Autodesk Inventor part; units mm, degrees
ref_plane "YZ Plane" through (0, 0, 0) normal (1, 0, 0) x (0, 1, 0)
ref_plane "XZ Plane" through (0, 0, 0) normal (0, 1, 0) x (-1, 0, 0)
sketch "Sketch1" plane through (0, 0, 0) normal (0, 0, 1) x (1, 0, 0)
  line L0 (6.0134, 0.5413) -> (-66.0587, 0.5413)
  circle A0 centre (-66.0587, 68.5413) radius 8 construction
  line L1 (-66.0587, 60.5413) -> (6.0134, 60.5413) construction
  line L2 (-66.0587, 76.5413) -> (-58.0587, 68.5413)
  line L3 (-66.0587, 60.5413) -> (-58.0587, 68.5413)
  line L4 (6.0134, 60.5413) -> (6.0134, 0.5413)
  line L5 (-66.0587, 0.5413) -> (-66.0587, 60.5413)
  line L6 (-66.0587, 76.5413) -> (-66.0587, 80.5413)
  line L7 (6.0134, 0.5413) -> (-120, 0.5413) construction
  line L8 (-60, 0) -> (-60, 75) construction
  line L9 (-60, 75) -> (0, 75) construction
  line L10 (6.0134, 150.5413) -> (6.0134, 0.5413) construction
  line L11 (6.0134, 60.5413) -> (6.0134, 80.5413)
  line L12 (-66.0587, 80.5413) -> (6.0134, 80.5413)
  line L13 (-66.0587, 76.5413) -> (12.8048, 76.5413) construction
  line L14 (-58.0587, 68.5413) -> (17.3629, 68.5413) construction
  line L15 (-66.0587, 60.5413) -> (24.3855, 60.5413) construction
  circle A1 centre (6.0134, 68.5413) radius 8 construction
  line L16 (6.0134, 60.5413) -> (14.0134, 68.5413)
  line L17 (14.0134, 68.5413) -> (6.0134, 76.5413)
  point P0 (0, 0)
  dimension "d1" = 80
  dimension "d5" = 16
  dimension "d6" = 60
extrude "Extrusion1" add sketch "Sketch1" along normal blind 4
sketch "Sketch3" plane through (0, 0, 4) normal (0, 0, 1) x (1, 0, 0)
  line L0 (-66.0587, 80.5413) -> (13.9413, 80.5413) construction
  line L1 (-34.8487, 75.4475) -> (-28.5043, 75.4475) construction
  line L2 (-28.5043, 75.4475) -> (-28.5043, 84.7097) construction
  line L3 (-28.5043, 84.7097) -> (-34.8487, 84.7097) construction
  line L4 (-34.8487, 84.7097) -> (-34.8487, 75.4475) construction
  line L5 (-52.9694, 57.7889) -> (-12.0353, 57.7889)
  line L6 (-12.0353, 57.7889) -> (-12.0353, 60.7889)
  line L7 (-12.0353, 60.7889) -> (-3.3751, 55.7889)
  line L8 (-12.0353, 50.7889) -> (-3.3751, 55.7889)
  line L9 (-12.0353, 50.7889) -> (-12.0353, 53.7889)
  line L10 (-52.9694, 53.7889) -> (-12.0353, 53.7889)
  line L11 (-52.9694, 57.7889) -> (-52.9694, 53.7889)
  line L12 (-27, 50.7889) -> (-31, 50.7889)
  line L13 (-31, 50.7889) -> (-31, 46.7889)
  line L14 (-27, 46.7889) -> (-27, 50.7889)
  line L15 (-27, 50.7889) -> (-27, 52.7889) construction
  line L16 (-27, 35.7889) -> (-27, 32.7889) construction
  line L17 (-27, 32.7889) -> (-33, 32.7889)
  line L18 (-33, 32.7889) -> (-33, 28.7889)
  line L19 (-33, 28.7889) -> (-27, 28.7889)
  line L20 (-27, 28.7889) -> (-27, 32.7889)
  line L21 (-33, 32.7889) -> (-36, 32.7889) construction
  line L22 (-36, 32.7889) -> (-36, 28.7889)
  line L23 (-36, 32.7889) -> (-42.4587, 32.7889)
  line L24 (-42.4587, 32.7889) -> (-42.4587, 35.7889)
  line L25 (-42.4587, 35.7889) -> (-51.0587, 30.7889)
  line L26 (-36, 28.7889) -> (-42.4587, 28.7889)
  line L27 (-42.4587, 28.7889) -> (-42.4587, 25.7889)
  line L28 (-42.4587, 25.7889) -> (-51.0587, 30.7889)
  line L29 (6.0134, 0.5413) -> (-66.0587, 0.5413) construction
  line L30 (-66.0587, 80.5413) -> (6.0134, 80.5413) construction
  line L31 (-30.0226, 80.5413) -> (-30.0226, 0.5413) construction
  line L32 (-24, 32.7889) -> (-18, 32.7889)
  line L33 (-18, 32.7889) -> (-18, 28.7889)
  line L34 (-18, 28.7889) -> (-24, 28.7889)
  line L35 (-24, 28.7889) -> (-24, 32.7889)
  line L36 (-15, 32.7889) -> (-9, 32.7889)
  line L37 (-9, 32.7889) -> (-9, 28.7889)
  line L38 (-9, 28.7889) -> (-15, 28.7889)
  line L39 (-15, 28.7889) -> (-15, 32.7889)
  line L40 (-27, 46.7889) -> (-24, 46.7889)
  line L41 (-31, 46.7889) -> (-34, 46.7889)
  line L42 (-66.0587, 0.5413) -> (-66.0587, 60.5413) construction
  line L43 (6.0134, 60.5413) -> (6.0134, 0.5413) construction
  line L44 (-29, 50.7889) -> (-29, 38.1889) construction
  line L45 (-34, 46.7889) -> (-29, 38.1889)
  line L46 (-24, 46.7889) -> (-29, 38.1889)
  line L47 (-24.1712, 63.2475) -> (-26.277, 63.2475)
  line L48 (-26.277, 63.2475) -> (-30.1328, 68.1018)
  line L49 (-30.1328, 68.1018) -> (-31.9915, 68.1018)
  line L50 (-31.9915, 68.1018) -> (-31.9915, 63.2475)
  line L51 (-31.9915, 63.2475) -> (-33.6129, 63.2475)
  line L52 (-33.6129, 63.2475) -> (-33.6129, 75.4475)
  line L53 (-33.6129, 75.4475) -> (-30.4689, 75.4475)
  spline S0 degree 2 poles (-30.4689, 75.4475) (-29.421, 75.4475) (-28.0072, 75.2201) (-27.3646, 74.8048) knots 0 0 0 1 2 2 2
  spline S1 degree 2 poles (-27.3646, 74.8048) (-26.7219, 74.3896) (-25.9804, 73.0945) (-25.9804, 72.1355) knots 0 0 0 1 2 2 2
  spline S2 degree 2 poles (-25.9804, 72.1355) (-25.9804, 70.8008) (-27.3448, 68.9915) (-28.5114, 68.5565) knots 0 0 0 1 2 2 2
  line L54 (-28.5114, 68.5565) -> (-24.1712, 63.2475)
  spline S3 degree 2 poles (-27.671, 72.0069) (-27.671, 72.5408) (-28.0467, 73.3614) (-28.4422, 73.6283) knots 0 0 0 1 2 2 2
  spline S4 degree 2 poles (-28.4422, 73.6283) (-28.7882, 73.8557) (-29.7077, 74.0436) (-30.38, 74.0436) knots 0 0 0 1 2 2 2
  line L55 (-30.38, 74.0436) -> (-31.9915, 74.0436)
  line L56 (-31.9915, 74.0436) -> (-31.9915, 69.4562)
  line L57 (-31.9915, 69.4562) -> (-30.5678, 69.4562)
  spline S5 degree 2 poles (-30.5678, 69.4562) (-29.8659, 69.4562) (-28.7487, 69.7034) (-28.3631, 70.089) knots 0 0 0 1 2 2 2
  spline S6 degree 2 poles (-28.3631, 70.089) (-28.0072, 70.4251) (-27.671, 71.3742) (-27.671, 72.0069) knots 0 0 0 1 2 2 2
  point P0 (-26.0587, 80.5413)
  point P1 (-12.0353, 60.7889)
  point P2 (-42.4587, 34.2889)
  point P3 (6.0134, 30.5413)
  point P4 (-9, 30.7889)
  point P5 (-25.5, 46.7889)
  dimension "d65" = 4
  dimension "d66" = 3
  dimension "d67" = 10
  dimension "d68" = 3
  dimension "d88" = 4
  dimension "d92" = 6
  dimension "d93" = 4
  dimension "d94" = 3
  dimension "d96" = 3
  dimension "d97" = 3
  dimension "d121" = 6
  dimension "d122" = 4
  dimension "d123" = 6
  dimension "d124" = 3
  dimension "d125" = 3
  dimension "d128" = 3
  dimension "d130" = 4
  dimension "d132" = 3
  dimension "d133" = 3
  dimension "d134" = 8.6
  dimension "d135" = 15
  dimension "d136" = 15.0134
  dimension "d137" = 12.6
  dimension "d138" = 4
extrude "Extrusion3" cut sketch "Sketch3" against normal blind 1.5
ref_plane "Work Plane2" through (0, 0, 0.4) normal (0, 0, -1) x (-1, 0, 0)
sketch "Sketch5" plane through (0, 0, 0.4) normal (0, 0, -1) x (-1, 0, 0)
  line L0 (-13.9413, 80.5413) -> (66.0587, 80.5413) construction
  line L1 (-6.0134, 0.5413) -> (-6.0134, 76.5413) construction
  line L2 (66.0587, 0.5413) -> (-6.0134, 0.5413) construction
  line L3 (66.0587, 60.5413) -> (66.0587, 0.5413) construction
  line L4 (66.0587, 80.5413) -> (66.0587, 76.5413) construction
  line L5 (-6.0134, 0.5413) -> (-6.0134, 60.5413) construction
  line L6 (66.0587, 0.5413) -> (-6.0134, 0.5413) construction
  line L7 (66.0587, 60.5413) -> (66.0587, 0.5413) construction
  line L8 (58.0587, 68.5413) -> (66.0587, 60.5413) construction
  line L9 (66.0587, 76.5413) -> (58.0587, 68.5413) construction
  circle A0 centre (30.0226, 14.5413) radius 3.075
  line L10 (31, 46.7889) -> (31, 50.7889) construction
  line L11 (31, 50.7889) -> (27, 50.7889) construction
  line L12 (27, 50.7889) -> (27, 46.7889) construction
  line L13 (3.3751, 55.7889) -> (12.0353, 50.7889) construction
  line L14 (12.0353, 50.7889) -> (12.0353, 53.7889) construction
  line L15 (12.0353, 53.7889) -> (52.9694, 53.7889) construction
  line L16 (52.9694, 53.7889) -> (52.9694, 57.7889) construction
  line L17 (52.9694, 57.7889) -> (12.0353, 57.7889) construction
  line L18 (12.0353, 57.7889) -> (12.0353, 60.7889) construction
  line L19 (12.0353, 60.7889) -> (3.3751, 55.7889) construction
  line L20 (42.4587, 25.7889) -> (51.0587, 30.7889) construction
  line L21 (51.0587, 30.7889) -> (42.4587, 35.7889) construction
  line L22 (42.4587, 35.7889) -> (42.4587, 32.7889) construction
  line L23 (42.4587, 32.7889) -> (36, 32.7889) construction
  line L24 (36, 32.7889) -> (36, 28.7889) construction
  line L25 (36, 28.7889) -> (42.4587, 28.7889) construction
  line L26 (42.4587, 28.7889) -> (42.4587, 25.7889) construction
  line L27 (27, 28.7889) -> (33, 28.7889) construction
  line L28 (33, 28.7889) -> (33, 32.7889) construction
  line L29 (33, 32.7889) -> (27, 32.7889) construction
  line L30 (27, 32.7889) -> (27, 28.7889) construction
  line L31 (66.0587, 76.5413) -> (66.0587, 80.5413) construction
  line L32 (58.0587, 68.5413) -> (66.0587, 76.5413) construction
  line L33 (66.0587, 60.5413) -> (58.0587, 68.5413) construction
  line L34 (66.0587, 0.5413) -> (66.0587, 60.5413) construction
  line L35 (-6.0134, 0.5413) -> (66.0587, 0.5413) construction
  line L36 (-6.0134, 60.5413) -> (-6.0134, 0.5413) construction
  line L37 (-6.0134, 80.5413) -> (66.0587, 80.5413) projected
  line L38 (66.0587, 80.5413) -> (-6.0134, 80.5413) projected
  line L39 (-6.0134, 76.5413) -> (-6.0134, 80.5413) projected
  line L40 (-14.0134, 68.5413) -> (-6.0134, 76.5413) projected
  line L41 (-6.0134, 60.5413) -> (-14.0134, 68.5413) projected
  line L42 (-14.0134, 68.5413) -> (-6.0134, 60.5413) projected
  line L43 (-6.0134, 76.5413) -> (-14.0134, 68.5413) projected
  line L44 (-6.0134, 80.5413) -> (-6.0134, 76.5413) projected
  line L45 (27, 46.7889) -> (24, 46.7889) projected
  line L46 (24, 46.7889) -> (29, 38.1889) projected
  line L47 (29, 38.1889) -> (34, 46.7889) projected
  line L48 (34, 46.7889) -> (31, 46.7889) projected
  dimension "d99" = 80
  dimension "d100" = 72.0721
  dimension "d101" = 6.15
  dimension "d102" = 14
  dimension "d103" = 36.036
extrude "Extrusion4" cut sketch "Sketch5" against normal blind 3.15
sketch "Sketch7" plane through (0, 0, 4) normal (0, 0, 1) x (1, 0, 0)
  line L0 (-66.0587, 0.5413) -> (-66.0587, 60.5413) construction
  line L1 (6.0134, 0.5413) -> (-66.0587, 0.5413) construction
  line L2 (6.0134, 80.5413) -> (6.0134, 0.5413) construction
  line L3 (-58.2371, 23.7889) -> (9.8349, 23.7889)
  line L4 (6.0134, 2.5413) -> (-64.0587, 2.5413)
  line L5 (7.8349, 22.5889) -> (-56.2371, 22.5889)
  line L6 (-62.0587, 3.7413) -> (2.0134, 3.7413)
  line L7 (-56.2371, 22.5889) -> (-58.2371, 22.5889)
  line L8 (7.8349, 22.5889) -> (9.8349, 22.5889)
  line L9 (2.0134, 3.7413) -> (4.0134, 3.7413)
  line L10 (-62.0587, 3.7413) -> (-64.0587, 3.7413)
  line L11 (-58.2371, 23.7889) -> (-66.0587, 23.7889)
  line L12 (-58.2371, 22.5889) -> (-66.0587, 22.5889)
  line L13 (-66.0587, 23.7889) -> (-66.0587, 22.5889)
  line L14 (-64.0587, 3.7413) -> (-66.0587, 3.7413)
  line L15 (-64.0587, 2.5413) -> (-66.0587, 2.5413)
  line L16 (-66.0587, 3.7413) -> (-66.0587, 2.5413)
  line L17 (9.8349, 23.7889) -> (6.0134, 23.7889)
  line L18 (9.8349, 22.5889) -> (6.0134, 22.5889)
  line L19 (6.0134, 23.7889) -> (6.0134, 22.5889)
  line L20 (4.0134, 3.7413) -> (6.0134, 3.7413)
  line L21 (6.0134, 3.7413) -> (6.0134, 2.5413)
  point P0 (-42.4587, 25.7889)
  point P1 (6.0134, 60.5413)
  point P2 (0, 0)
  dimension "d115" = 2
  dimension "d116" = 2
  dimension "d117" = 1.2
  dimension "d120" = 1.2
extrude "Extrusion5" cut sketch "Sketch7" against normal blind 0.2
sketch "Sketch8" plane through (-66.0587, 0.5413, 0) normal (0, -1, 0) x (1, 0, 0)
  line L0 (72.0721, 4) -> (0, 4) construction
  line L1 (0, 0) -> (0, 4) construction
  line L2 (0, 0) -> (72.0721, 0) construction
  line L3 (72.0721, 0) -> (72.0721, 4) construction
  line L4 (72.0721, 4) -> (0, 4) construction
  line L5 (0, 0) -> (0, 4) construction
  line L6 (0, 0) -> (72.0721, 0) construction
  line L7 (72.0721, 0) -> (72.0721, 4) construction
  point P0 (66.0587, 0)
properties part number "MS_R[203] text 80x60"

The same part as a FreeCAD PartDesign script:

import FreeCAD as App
import Part
import Sketcher

V = App.Vector
Q = App.Units.Quantity


def add_polygon(sketch, points):
    """Adds a closed chain of lines whose ends are joined by coincident constraints."""
    first, n = sketch.GeometryCount, len(points)
    for a, b in zip(points, points[1:] + points[:1]):
        sketch.addGeometry(Part.LineSegment(App.Vector(*a, 0), App.Vector(*b, 0)), False)
    for i in range(n):
        sketch.addConstraint(Sketcher.Constraint("Coincident", first + i, 2, first + (i + 1) % n, 1))

doc = App.newDocument("Part")
body = doc.addObject("PartDesign::Body", "Body")

sketch1 = doc.addObject("Sketcher::SketchObject", "Sketch")
body.addObject(sketch1)
sketch1.AttachmentSupport = (doc.XY_Plane, [""])
sketch1.MapMode = "FlatFace"
add_polygon(sketch1, [(-66.1, 0.5), (6, 0.5), (6, 60.5), (14, 68.5), (6, 76.5), (6, 80.5), (-66.1, 80.5), (-66.1, 76.5), (-58.1, 68.5), (-66.1, 60.5)])
sketch1.addConstraint(Sketcher.Constraint("Horizontal", 0))
sketch1.addConstraint(Sketcher.Constraint("Vertical", 1))
sketch1.addConstraint(Sketcher.Constraint("Vertical", 4))
sketch1.addConstraint(Sketcher.Constraint("Horizontal", 5))
sketch1.addConstraint(Sketcher.Constraint("Vertical", 6))
sketch1.addConstraint(Sketcher.Constraint("Vertical", 9))
sketch1.addConstraint(Sketcher.Constraint("Perpendicular", 2, 3))
sketch1.addConstraint(Sketcher.Constraint("Parallel", 3, 7))
sketch1.addConstraint(Sketcher.Constraint("Perpendicular", 7, 8))
sketch1.addConstraint(Sketcher.Constraint("Horizontal", 3, 2, 6, 2))
sketch1.addConstraint(Sketcher.Constraint("Horizontal", 2, 2, 7, 2))
sketch1.addConstraint(Sketcher.Constraint("Horizontal", 1, 2, 8, 2))
sketch1.addConstraint(Sketcher.Constraint("Vertical", 1, 2, 3, 2))
sketch1.addConstraint(Sketcher.Constraint("Equal", 2, 3))
sketch1.addConstraint(Sketcher.Constraint("DistanceY", 1, 1, 1, 2, Q("60 mm")))
sketch1.addConstraint(Sketcher.Constraint("DistanceY", 1, 2, 3, 2, Q("16 mm")))
sketch1.addConstraint(Sketcher.Constraint("DistanceY", 0, 2, 4, 2, Q("80 mm")))
sketch1.addConstraint(Sketcher.Constraint("DistanceX", 0, 1, 0, 2, Q("72.072 mm")))
sketch1.addConstraint(Sketcher.Constraint("DistanceX", -1, 1, 0, 2, Q("6.0134 mm")))
sketch1.addConstraint(Sketcher.Constraint("DistanceY", -1, 1, 0, 2, Q("0.5413 mm")))
pad1 = doc.addObject("PartDesign::Pad", "Pad")
body.addObject(pad1)
pad1.Profile = sketch1
pad1.Length = 4

sketch2 = doc.addObject("Sketcher::SketchObject", "Sketch001")
body.addObject(sketch2)
sketch2.AttachmentSupport = (doc.XY_Plane, [""])
sketch2.MapMode = "FlatFace"
sketch2.AttachmentOffset = App.Placement(V(0, 0, 4), App.Rotation())
add_polygon(sketch2, [(-12.0353, 57.7889), (-52.9694, 57.7889), (-52.9694, 53.7889), (-12.0353, 53.7889), (-12.0353, 50.7889), (-3.3751, 55.7889), (-12.0353, 60.7889)])
add_polygon(sketch2, [(-27, 46.7889), (-27, 50.7889), (-31, 50.7889), (-31, 46.7889), (-34, 46.7889), (-29, 38.1889), (-24, 46.7889)])
add_polygon(sketch2, [(-27, 28.7889), (-27, 32.7889), (-33, 32.7889), (-33, 28.7889)])
add_polygon(sketch2, [(-36, 28.7889), (-36, 32.7889), (-42.4587, 32.7889), (-42.4587, 35.7889), (-51.0587, 30.7889), (-42.4587, 25.7889), (-42.4587, 28.7889)])
add_polygon(sketch2, [(-18, 32.7889), (-24, 32.7889), (-24, 28.7889), (-18, 28.7889)])
add_polygon(sketch2, [(-9, 32.7889), (-15, 32.7889), (-15, 28.7889), (-9, 28.7889)])
sketch2.addGeometry(Part.LineSegment(V(-26.277, 63.2475, 0), V(-24.1712, 63.2475, 0)), False)
sketch2.addGeometry(Part.LineSegment(V(-24.1712, 63.2475, 0), V(-28.5114, 68.5565, 0)), False)
sketch2.addGeometry(Part.BSplineCurve([V(-25.9804, 72.1355, 0), V(-25.9804, 70.8008, 0), V(-27.3448, 68.9915, 0), V(-28.5114, 68.5565, 0)], [3, 1, 3], [0, 1, 2], False, 2, [1, 1, 1, 1], False), False)
sketch2.addGeometry(Part.BSplineCurve([V(-27.3646, 74.8048, 0), V(-26.7219, 74.3896, 0), V(-25.9804, 73.0945, 0), V(-25.9804, 72.1355, 0)], [3, 1, 3], [0, 1, 2], False, 2, [1, 1, 1, 1], False), False)
sketch2.addGeometry(Part.BSplineCurve([V(-30.4689, 75.4475, 0), V(-29.421, 75.4475, 0), V(-28.0072, 75.2201, 0), V(-27.3646, 74.8048, 0)], [3, 1, 3], [0, 1, 2], False, 2, [1, 1, 1, 1], False), False)
sketch2.addGeometry(Part.LineSegment(V(-30.4689, 75.4475, 0), V(-33.6129, 75.4475, 0)), False)
sketch2.addGeometry(Part.LineSegment(V(-33.6129, 75.4475, 0), V(-33.6129, 63.2475, 0)), False)
sketch2.addGeometry(Part.LineSegment(V(-33.6129, 63.2475, 0), V(-31.9915, 63.2475, 0)), False)
sketch2.addGeometry(Part.LineSegment(V(-31.9915, 63.2475, 0), V(-31.9915, 68.1018, 0)), False)
sketch2.addGeometry(Part.LineSegment(V(-31.9915, 68.1018, 0), V(-30.1328, 68.1018, 0)), False)
sketch2.addGeometry(Part.LineSegment(V(-30.1328, 68.1018, 0), V(-26.277, 63.2475, 0)), False)
sketch2.addGeometry(Part.BSplineCurve([V(-27.671, 72.0069, 0), V(-27.671, 72.5408, 0), V(-28.0467, 73.3614, 0), V(-28.4422, 73.6283, 0)], [3, 1, 3], [0, 1, 2], False, 2, [1, 1, 1, 1], False), False)
sketch2.addGeometry(Part.BSplineCurve([V(-28.3631, 70.089, 0), V(-28.0072, 70.4251, 0), V(-27.671, 71.3742, 0), V(-27.671, 72.0069, 0)], [3, 1, 3], [0, 1, 2], False, 2, [1, 1, 1, 1], False), False)
sketch2.addGeometry(Part.BSplineCurve([V(-30.5678, 69.4562, 0), V(-29.8659, 69.4562, 0), V(-28.7487, 69.7034, 0), V(-28.3631, 70.089, 0)], [3, 1, 3], [0, 1, 2], False, 2, [1, 1, 1, 1], False), False)
sketch2.addGeometry(Part.LineSegment(V(-30.5678, 69.4562, 0), V(-31.9915, 69.4562, 0)), False)
sketch2.addGeometry(Part.LineSegment(V(-31.9915, 69.4562, 0), V(-31.9915, 74.0436, 0)), False)
sketch2.addGeometry(Part.LineSegment(V(-31.9915, 74.0436, 0), V(-30.38, 74.0436, 0)), False)
sketch2.addGeometry(Part.BSplineCurve([V(-28.4422, 73.6283, 0), V(-28.7882, 73.8557, 0), V(-29.7077, 74.0436, 0), V(-30.38, 74.0436, 0)], [3, 1, 3], [0, 1, 2], False, 2, [1, 1, 1, 1], False), False)
sketch2.addConstraint(Sketcher.Constraint("Block", 35))
sketch2.addConstraint(Sketcher.Constraint("Block", 36))
sketch2.addConstraint(Sketcher.Constraint("Block", 37))
sketch2.addConstraint(Sketcher.Constraint("Block", 44))
sketch2.addConstraint(Sketcher.Constraint("Block", 45))
sketch2.addConstraint(Sketcher.Constraint("Block", 46))
sketch2.addConstraint(Sketcher.Constraint("Block", 50))
sketch2.addConstraint(Sketcher.Constraint("Coincident", 33, 2, 34, 1))
sketch2.addConstraint(Sketcher.Constraint("Coincident", 34, 2, 35, 2))
sketch2.addConstraint(Sketcher.Constraint("Coincident", 37, 1, 38, 1))
sketch2.addConstraint(Sketcher.Constraint("Coincident", 38, 2, 39, 1))
sketch2.addConstraint(Sketcher.Constraint("Coincident", 39, 2, 40, 1))
sketch2.addConstraint(Sketcher.Constraint("Coincident", 40, 2, 41, 1))
sketch2.addConstraint(Sketcher.Constraint("Coincident", 41, 2, 42, 1))
sketch2.addConstraint(Sketcher.Constraint("Coincident", 42, 2, 43, 1))
sketch2.addConstraint(Sketcher.Constraint("Coincident", 43, 2, 33, 1))
sketch2.addConstraint(Sketcher.Constraint("Coincident", 46, 1, 47, 1))
sketch2.addConstraint(Sketcher.Constraint("Coincident", 47, 2, 48, 1))
sketch2.addConstraint(Sketcher.Constraint("Coincident", 48, 2, 49, 1))
sketch2.addConstraint(Sketcher.Constraint("Coincident", 49, 2, 50, 2))
sketch2.addConstraint(Sketcher.Constraint("Horizontal", 0))
sketch2.addConstraint(Sketcher.Constraint("Vertical", 1))
sketch2.addConstraint(Sketcher.Constraint("Horizontal", 2))
sketch2.addConstraint(Sketcher.Constraint("Vertical", 3))
sketch2.addConstraint(Sketcher.Constraint("Vertical", 6))
sketch2.addConstraint(Sketcher.Constraint("Vertical", 7))
sketch2.addConstraint(Sketcher.Constraint("Horizontal", 8))
sketch2.addConstraint(Sketcher.Constraint("Vertical", 9))
sketch2.addConstraint(Sketcher.Constraint("Horizontal", 10))
sketch2.addConstraint(Sketcher.Constraint("Horizontal", 13))
sketch2.addConstraint(Sketcher.Constraint("Vertical", 14))
sketch2.addConstraint(Sketcher.Constraint("Horizontal", 15))
sketch2.addConstraint(Sketcher.Constraint("Vertical", 16))
sketch2.addConstraint(Sketcher.Constraint("Horizontal", 17))
sketch2.addConstraint(Sketcher.Constraint("Vertical", 18))
sketch2.addConstraint(Sketcher.Constraint("Horizontal", 19))
sketch2.addConstraint(Sketcher.Constraint("Vertical", 20))
sketch2.addConstraint(Sketcher.Constraint("Vertical", 23))
sketch2.addConstraint(Sketcher.Constraint("Horizontal", 24))
sketch2.addConstraint(Sketcher.Constraint("Horizontal", 25))
sketch2.addConstraint(Sketcher.Constraint("Vertical", 26))
sketch2.addConstraint(Sketcher.Constraint("Horizontal", 27))
sketch2.addConstraint(Sketcher.Constraint("Vertical", 28))
sketch2.addConstraint(Sketcher.Constraint("Horizontal", 29))
sketch2.addConstraint(Sketcher.Constraint("Vertical", 30))
sketch2.addConstraint(Sketcher.Constraint("Horizontal", 31))
sketch2.addConstraint(Sketcher.Constraint("Vertical", 32))
sketch2.addConstraint(Sketcher.Constraint("Horizontal", 33))
sketch2.addConstraint(Sketcher.Constraint("Horizontal", 38))
sketch2.addConstraint(Sketcher.Constraint("Vertical", 39))
sketch2.addConstraint(Sketcher.Constraint("Horizontal", 40))
sketch2.addConstraint(Sketcher.Constraint("Vertical", 41))
sketch2.addConstraint(Sketcher.Constraint("Horizontal", 42))
sketch2.addConstraint(Sketcher.Constraint("Horizontal", 47))
sketch2.addConstraint(Sketcher.Constraint("Vertical", 48))
sketch2.addConstraint(Sketcher.Constraint("Horizontal", 49))
sketch2.addConstraint(Sketcher.Constraint("Perpendicular", 11, 21))
sketch2.addConstraint(Sketcher.Constraint("Perpendicular", 12, 22))
sketch2.addConstraint(Sketcher.Constraint("Horizontal", 3, 2, 7, 2))
sketch2.addConstraint(Sketcher.Constraint("Horizontal", 10, 2, 12, 2))
sketch2.addConstraint(Sketcher.Constraint("Horizontal", 15, 2, 18, 2))
sketch2.addConstraint(Sketcher.Constraint("Horizontal", 17, 2, 23, 2))
sketch2.addConstraint(Sketcher.Constraint("Horizontal", 19, 2, 25, 2))
sketch2.addConstraint(Sketcher.Constraint("Horizontal", 24, 2, 26, 2))
sketch2.addConstraint(Sketcher.Constraint("Horizontal", 28, 2, 29, 2))
sketch2.addConstraint(Sketcher.Constraint("Horizontal", 27, 2, 30, 2))
sketch2.addConstraint(Sketcher.Constraint("Horizontal", 33, 2, 39, 2))
sketch2.addConstraint(Sketcher.Constraint("Vertical", 3, 2, 5, 2))
sketch2.addConstraint(Sketcher.Constraint("Vertical", 13, 2, 14, 2))
sketch2.addConstraint(Sketcher.Constraint("Vertical", 20, 2, 22, 2))
sketch2.addConstraint(Sketcher.Constraint("Vertical", 12, 2, 25, 2))
sketch2.addConstraint(Sketcher.Constraint("Vertical", 41, 2, 47, 2))
sketch2.addConstraint(Sketcher.Constraint("Equal", 10, 13))
sketch2.addConstraint(Sketcher.Constraint("Equal", 17, 25))
sketch2.addConstraint(Sketcher.Constraint("Equal", 27, 29))
sketch2.addConstraint(Sketcher.Constraint("Equal", 8, 1))
sketch2.addConstraint(Sketcher.Constraint("Equal", 13, 3))
sketch2.addConstraint(Sketcher.Constraint("Equal", 3, 6))
sketch2.addConstraint(Sketcher.Constraint("Equal", 1, 7))
sketch2.addConstraint(Sketcher.Constraint("Equal", 9, 14))
sketch2.addConstraint(Sketcher.Constraint("Equal", 6, 20))
sketch2.addConstraint(Sketcher.Constraint("Equal", 20, 23))
sketch2.addConstraint(Sketcher.Constraint("Equal", 4, 5))
sketch2.addConstraint(Sketcher.Constraint("Equal", 11, 12))
sketch2.addConstraint(Sketcher.Constraint("DistanceX", 8, 2, 8, 1, Q("4 mm")))
sketch2.addConstraint(Sketcher.Constraint("DistanceX", 10, 2, 10, 1, Q("3 mm")))
sketch2.addConstraint(Sketcher.Constraint("DistanceX", 15, 2, 15, 1, Q("6 mm")))
sketch2.addConstraint(Sketcher.Constraint("Distance", 4, Q("10 mm")))
sketch2.addConstraint(Sketcher.Constraint("DistanceX", 29, 2, -1, 1, Q("15 mm")))
sketch2.addConstraint(Sketcher.Constraint("DistanceX", 18, 2, 15, 2, Q("3 mm")))
sketch2.addConstraint(Sketcher.Constraint("DistanceX", 28, 2, 29, 2, Q("3 mm")))
sketch2.addConstraint(Sketcher.Constraint("DistanceY", 11, 2, 9, 2, Q("8.6 mm")))
sketch2.addConstraint(Sketcher.Constraint("DistanceY", 39, 2, 39, 1, Q("12.2 mm")))
sketch2.addConstraint(Sketcher.Constraint("DistanceY", 14, 2, 13, 2, Q("14 mm")))
sketch2.addConstraint(Sketcher.Constraint("Angle", 43, Q("-51.5397 deg")))
sketch2.addConstraint(Sketcher.Constraint("DistanceX", 0, 2, 0, 1, Q("40.934 mm")))
sketch2.addConstraint(Sketcher.Constraint("DistanceX", 38, 2, 38, 1, Q("3.144 mm")))
sketch2.addConstraint(Sketcher.Constraint("DistanceX", 40, 2, 34, 2, Q("3.48 mm")))
sketch2.addConstraint(Sketcher.Constraint("DistanceX", 39, 2, 42, 2, Q("3.48 mm")))
sketch2.addConstraint(Sketcher.Constraint("DistanceX", 19, 2, 19, 1, Q("6.4587 mm")))
sketch2.addConstraint(Sketcher.Constraint("DistanceX", 33, 1, 33, 2, Q("2.1058 mm")))
sketch2.addConstraint(Sketcher.Constraint("DistanceY", 41, 1, 41, 2, Q("4.8543 mm")))
sketch2.addConstraint(Sketcher.Constraint("DistanceY", -1, 1, 0, 2, Q("57.789 mm")))
sketch2.addConstraint(Sketcher.Constraint("DistanceX", 4, 2, -1, 1, Q("3.375 mm")))
pocket1 = doc.addObject("PartDesign::Pocket", "Pocket")
body.addObject(pocket1)
pocket1.Profile = sketch2
pocket1.Length = 1.5

sketch3 = doc.addObject("Sketcher::SketchObject", "Sketch002")
body.addObject(sketch3)
sketch3.AttachmentSupport = (doc.XY_Plane, [""])
sketch3.MapMode = "FlatFace"
sketch3.AttachmentOffset = App.Placement(V(0, 0, 0.4), App.Rotation())
sketch3.addGeometry(Part.Circle(V(-30, 14.5, 0), V(0, 0, 1), 3.1), False)
sketch3.addConstraint(Sketcher.Constraint("Diameter", 0, Q("6.15 mm")))
sketch3.addConstraint(Sketcher.Constraint("DistanceX", 0, 3, -1, 1, Q("30.0226 mm")))
sketch3.addConstraint(Sketcher.Constraint("DistanceY", -1, 1, 0, 3, Q("14.5413 mm")))
pocket2 = doc.addObject("PartDesign::Pocket", "Pocket001")
body.addObject(pocket2)
pocket2.Profile = sketch3
pocket2.Length = 3.15
pocket2.Reversed = True

sketch4 = doc.addObject("Sketcher::SketchObject", "Sketch003")
body.addObject(sketch4)
sketch4.AttachmentSupport = (doc.XY_Plane, [""])
sketch4.MapMode = "FlatFace"
sketch4.AttachmentOffset = App.Placement(V(0, 0, 4), App.Rotation())
add_polygon(sketch4, [(6, 23.8), (-66.1, 23.8), (-66.1, 22.6), (6, 22.6)])
add_polygon(sketch4, [(-66.1, 2.5), (6, 2.5), (6, 3.7), (-66.1, 3.7)])
sketch4.addConstraint(Sketcher.Constraint("Horizontal", 0))
sketch4.addConstraint(Sketcher.Constraint("Vertical", 1))
sketch4.addConstraint(Sketcher.Constraint("Horizontal", 2))
sketch4.addConstraint(Sketcher.Constraint("Vertical", 3))
sketch4.addConstraint(Sketcher.Constraint("Horizontal", 4))
sketch4.addConstraint(Sketcher.Constraint("Vertical", 5))
sketch4.addConstraint(Sketcher.Constraint("Horizontal", 6))
sketch4.addConstraint(Sketcher.Constraint("Vertical", 7))
sketch4.addConstraint(Sketcher.Constraint("Vertical", 3, 2, 4, 2))
sketch4.addConstraint(Sketcher.Constraint("Vertical", 1, 2, 6, 2))
sketch4.addConstraint(Sketcher.Constraint("Equal", 3, 5))
sketch4.addConstraint(Sketcher.Constraint("DistanceY", 1, 2, 1, 1, Q("1.2 mm")))
sketch4.addConstraint(Sketcher.Constraint("DistanceX", 0, 2, 0, 1, Q("72.072 mm")))
sketch4.addConstraint(Sketcher.Constraint("DistanceY", -1, 1, 0, 2, Q("23.789 mm")))
sketch4.addConstraint(Sketcher.Constraint("DistanceX", 0, 2, -1, 1, Q("66.0587 mm")))
sketch4.addConstraint(Sketcher.Constraint("DistanceY", -1, 1, 4, 2, Q("2.5413 mm")))
pocket3 = doc.addObject("PartDesign::Pocket", "Pocket002")
body.addObject(pocket3)
pocket3.Profile = sketch4
pocket3.Length = 0.2

doc.recompute()
